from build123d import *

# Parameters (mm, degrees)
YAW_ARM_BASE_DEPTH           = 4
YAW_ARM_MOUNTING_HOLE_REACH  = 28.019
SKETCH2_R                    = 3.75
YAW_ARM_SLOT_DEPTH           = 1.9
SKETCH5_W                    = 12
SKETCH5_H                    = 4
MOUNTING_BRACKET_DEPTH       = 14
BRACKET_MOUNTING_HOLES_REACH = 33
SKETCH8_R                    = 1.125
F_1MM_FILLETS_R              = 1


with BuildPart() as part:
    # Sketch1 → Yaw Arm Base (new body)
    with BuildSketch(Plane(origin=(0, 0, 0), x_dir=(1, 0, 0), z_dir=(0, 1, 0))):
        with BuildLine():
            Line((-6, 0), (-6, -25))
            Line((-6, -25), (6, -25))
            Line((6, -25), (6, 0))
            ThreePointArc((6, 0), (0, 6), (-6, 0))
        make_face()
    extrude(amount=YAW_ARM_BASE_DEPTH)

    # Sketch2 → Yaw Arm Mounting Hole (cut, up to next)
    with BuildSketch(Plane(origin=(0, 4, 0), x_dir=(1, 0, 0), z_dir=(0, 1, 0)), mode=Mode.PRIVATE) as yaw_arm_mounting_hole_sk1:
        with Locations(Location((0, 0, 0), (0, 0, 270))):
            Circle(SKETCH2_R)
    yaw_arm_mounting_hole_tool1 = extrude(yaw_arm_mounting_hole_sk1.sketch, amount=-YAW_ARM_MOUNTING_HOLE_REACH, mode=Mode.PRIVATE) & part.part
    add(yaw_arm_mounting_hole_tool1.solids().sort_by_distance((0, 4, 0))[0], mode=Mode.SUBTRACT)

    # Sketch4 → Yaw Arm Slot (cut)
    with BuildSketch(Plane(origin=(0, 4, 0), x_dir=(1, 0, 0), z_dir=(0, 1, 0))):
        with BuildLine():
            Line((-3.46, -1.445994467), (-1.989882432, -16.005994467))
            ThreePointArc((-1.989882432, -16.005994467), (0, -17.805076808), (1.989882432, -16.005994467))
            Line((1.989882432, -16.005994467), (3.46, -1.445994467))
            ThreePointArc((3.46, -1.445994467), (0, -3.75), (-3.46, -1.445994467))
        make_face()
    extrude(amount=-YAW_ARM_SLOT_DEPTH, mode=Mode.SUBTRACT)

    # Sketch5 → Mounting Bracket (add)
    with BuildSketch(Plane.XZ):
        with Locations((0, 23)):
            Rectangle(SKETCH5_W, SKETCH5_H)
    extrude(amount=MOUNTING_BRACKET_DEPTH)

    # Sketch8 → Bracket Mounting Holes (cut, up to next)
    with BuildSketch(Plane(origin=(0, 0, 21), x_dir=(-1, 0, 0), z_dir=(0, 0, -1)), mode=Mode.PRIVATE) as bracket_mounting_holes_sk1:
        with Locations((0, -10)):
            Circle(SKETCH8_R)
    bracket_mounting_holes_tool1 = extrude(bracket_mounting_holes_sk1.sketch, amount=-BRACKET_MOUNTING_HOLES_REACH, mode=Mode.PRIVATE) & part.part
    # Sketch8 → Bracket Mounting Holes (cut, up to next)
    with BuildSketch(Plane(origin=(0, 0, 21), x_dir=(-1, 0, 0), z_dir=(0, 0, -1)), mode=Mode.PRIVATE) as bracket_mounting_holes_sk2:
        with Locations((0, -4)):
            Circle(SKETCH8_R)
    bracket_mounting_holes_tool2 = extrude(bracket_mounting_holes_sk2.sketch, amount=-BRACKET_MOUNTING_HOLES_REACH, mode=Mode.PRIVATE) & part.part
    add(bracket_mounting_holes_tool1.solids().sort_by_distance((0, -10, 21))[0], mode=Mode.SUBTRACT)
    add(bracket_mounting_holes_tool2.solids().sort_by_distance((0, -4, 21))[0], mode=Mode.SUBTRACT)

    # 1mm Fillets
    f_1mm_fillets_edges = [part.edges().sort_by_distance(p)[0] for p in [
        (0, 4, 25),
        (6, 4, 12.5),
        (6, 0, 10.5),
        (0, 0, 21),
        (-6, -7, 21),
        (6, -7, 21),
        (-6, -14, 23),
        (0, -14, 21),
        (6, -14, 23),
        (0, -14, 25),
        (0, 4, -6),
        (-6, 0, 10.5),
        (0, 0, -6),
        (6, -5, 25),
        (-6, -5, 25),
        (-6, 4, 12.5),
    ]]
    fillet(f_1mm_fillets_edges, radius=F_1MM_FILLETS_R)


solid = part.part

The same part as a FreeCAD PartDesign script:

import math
import FreeCAD as App
import Part
import Sketcher


def edges_at(feature, points):
    """Names of the edges that pass closest to the given points."""
    edges = feature.Shape.Edges
    near = lambda p: min(range(len(edges)), key=lambda i: edges[i].distToShape(Part.Vertex(*p))[0])
    return sorted({f"Edge{near(p) + 1}" for p in points})

doc = App.newDocument("Part")
params = doc.addObject("Spreadsheet::Sheet", "Params")
for row, (alias, value) in enumerate([
    ("sketch1_radius", "6 mm"),
    ("sketch1_height", "25 mm"),
    ("pad1_length", "4 mm"),
    ("sketch2_diameter", "7.5 mm"),
    ("sketch3_radius", "2 mm"),
    ("sketch3_radius2", "3.75 mm"),
    ("pocket2_length", "1.9 mm"),
    ("sketch4_width", "12 mm"),
    ("sketch4_height", "4 mm"),
    ("pad2_length", "14 mm"),
    ("sketch5_diameter", "2.25 mm"),
    ("sketch6_diameter", "2.25 mm"),
    ("fillet_radius", "1 mm"),
], start=1):
    params.set(f"A{row}", alias)
    params.set(f"B{row}", "=" + value)
    params.setAlias(f"B{row}", alias)

body = doc.addObject("PartDesign::Body", "Body")

# Sketch on XZ plane
sketch1 = body.newObject("Sketcher::SketchObject", "Sketch")
sketch1.AttachmentSupport = (doc.getObject("XZ_Plane"), [""])
sketch1.MapMode = "FlatFace"
sketch1.addGeometry([
    Part.LineSegment(App.Vector(-6, 0, 0), App.Vector(-6, 25, 0)),
    Part.LineSegment(App.Vector(-6, 25, 0), App.Vector(6, 25, 0)),
    Part.LineSegment(App.Vector(6, 25, 0), App.Vector(6, 0, 0)),
    Part.ArcOfCircle(Part.Circle(App.Vector(0, 0, 0), App.Vector(0, 0, 1), 6), math.radians(180), math.radians(360)),
], False)
sketch1.addConstraint([
    Sketcher.Constraint("Coincident", 0, 2, 1, 1),
    Sketcher.Constraint("Coincident", 1, 2, 2, 1),
    Sketcher.Constraint("Tangent", 2, 2, 3, 2),
    Sketcher.Constraint("Tangent", 3, 1, 0, 1),
    Sketcher.Constraint("Vertical", 0),
    Sketcher.Constraint("Horizontal", 1),
    Sketcher.Constraint("Vertical", 2),
    Sketcher.Constraint("Coincident", 3, 3, -1, 1),
    Sketcher.Constraint("Radius", 3, 6.0),
    Sketcher.Constraint("DistanceY", 0, 1, 0, 2, 25.0),
])
sketch1.setExpression("Constraints[8]", "Params.sketch1_radius")
sketch1.setExpression("Constraints[9]", "Params.sketch1_height")
pad1 = body.newObject("PartDesign::Pad", "Pad")
pad1.Profile = sketch1
pad1.setExpression("Length", "Params.pad1_length")
pad1.Reversed = True

# Sketch on XZ plane
sketch2 = body.newObject("Sketcher::SketchObject", "Sketch001")
sketch2.AttachmentSupport = (doc.getObject("XZ_Plane"), [""])
sketch2.MapMode = "FlatFace"
sketch2.AttachmentOffset = App.Placement(App.Vector(0, 0, -4), App.Rotation())
sketch2.addGeometry(Part.Circle(App.Vector(0, 0, 0), App.Vector(0, 0, 1), 3.8), False)
sketch2.addConstraint([
    Sketcher.Constraint("Coincident", 0, 3, -1, 1),
    Sketcher.Constraint("Diameter", 0, 7.5),
])
sketch2.setExpression("Constraints[1]", "Params.sketch2_diameter")
pocket1 = body.newObject("PartDesign::Pocket", "Pocket")
pocket1.Profile = sketch2
pocket1.Type = "UpToFirst"
pocket1.Reversed = True

# Sketch on XZ plane
sketch3 = body.newObject("Sketcher::SketchObject", "Sketch002")
sketch3.AttachmentSupport = (doc.getObject("XZ_Plane"), [""])
sketch3.MapMode = "FlatFace"
sketch3.AttachmentOffset = App.Placement(App.Vector(0, 0, -4), App.Rotation())
sketch3.addGeometry([
    Part.LineSegment(App.Vector(-3.5, 1.4, 0), App.Vector(-2, 16, 0)),
    Part.ArcOfCircle(Part.Circle(App.Vector(0, 15.8, 0), App.Vector(0, 0, 1), 2), math.radians(6), math.radians(174)),
    Part.LineSegment(App.Vector(2, 16, 0), App.Vector(3.5, 1.4, 0)),
    Part.ArcOfCircle(Part.Circle(App.Vector(0, 0, 0), App.Vector(0, 0, 1), 3.8), math.radians(23), math.radians(157)),
], False)
sketch3.addConstraint([
    Sketcher.Constraint("Tangent", 0, 2, 1, 2),
    Sketcher.Constraint("Tangent", 1, 1, 2, 1),
    Sketcher.Constraint("Coincident", 2, 2, 3, 1),
    Sketcher.Constraint("Coincident", 3, 2, 0, 1),
    Sketcher.Constraint("Coincident", 3, 3, -1, 1),
    Sketcher.Constraint("Symmetric", 0, 2, 1, 1, -2),
    Sketcher.Constraint("Radius", 1, 2.0),
    Sketcher.Constraint("Radius", 3, 3.75),
    Sketcher.Constraint("DistanceX", -1, 1, 2, 2, 3.46),
    Sketcher.Constraint("DistanceY", 2, 2, 1, 1, 14.56),
])
sketch3.setExpression("Constraints[6]", "Params.sketch3_radius")
sketch3.setExpression("Constraints[7]", "Params.sketch3_radius2")
pocket2 = body.newObject("PartDesign::Pocket", "Pocket001")
pocket2.Profile = sketch3
pocket2.setExpression("Length", "Params.pocket2_length")
pocket2.Reversed = True

# Sketch on XZ plane
sketch4 = body.newObject("Sketcher::SketchObject", "Sketch003")
sketch4.AttachmentSupport = (doc.getObject("XZ_Plane"), [""])
sketch4.MapMode = "FlatFace"
sketch4.addGeometry([
    Part.LineSegment(App.Vector(-6, 25, 0), App.Vector(-6, 21, 0)),
    Part.LineSegment(App.Vector(-6, 21, 0), App.Vector(6, 21, 0)),
    Part.LineSegment(App.Vector(6, 21, 0), App.Vector(6, 25, 0)),
    Part.LineSegment(App.Vector(6, 25, 0), App.Vector(-6, 25, 0)),
], False)
sketch4.addConstraint([
    Sketcher.Constraint("Coincident", 0, 2, 1, 1),
    Sketcher.Constraint("Coincident", 1, 2, 2, 1),
    Sketcher.Constraint("Coincident", 2, 2, 3, 1),
    Sketcher.Constraint("Coincident", 3, 2, 0, 1),
    Sketcher.Constraint("Vertical", 0),
    Sketcher.Constraint("Horizontal", 1),
    Sketcher.Constraint("Vertical", 2),
    Sketcher.Constraint("Horizontal", 3),
    Sketcher.Constraint("DistanceX", 1, 1, 1, 2, 12.0),
    Sketcher.Constraint("DistanceY", 0, 2, 0, 1, 4.0),
    Sketcher.Constraint("DistanceX", 0, 2, -1, 1, 6.0),
    Sketcher.Constraint("DistanceY", -1, 1, 0, 2, 21.0),
])
sketch4.setExpression("Constraints[8]", "Params.sketch4_width")
sketch4.setExpression("Constraints[9]", "Params.sketch4_height")
pad2 = body.newObject("PartDesign::Pad", "Pad001")
pad2.Profile = sketch4
pad2.setExpression("Length", "Params.pad2_length")

# Sketch on XY plane
sketch5 = body.newObject("Sketcher::SketchObject", "Sketch004")
sketch5.AttachmentSupport = (doc.getObject("XY_Plane"), [""])
sketch5.MapMode = "FlatFace"
sketch5.AttachmentOffset = App.Placement(App.Vector(0, 0, 21), App.Rotation())
sketch5.addGeometry(Part.Circle(App.Vector(0, -10, 0), App.Vector(0, 0, 1), 1.1), False)
sketch5.addConstraint([
    Sketcher.Constraint("PointOnObject", 0, 3, -2),
    Sketcher.Constraint("Diameter", 0, 2.25),
    Sketcher.Constraint("DistanceY", 0, 3, -1, 1, 10.0),
])
sketch5.setExpression("Constraints[1]", "Params.sketch5_diameter")
pocket3 = body.newObject("PartDesign::Pocket", "Pocket002")
pocket3.Profile = sketch5
pocket3.Type = "UpToFirst"
pocket3.Reversed = True

# Sketch on XY plane
sketch6 = body.newObject("Sketcher::SketchObject", "Sketch005")
sketch6.AttachmentSupport = (doc.getObject("XY_Plane"), [""])
sketch6.MapMode = "FlatFace"
sketch6.AttachmentOffset = App.Placement(App.Vector(0, 0, 21), App.Rotation())
sketch6.addGeometry(Part.Circle(App.Vector(0, -4, 0), App.Vector(0, 0, 1), 1.1), False)
sketch6.addConstraint([
    Sketcher.Constraint("PointOnObject", 0, 3, -2),
    Sketcher.Constraint("Diameter", 0, 2.25),
    Sketcher.Constraint("DistanceY", 0, 3, -1, 1, 4.0),
])
sketch6.setExpression("Constraints[1]", "Params.sketch6_diameter")
pocket4 = body.newObject("PartDesign::Pocket", "Pocket003")
pocket4.Profile = sketch6
pocket4.Type = "UpToFirst"
pocket4.Reversed = True
doc.recompute()

fillet = body.newObject("PartDesign::Fillet", "Fillet")
fillet.Base = (pocket4, edges_at(pocket4, [
    (0, 4, 25),
    (6, 4, 12.5),
    (6, 0, 10.5),
    (0, 0, 21),
    (-6, -7, 21),
    (6, -7, 21),
    (-6, -14, 23),
    (0, -14, 21),
    (6, -14, 23),
    (0, -14, 25),
    (0, 4, -6),
    (-6, 0, 10.5),
    (0, 0, -6),
    (6, -5, 25),
    (-6, -5, 25),
    (-6, 4, 12.5),
]))
fillet.setExpression("Radius", "Params.fillet_radius")

doc.recompute()
